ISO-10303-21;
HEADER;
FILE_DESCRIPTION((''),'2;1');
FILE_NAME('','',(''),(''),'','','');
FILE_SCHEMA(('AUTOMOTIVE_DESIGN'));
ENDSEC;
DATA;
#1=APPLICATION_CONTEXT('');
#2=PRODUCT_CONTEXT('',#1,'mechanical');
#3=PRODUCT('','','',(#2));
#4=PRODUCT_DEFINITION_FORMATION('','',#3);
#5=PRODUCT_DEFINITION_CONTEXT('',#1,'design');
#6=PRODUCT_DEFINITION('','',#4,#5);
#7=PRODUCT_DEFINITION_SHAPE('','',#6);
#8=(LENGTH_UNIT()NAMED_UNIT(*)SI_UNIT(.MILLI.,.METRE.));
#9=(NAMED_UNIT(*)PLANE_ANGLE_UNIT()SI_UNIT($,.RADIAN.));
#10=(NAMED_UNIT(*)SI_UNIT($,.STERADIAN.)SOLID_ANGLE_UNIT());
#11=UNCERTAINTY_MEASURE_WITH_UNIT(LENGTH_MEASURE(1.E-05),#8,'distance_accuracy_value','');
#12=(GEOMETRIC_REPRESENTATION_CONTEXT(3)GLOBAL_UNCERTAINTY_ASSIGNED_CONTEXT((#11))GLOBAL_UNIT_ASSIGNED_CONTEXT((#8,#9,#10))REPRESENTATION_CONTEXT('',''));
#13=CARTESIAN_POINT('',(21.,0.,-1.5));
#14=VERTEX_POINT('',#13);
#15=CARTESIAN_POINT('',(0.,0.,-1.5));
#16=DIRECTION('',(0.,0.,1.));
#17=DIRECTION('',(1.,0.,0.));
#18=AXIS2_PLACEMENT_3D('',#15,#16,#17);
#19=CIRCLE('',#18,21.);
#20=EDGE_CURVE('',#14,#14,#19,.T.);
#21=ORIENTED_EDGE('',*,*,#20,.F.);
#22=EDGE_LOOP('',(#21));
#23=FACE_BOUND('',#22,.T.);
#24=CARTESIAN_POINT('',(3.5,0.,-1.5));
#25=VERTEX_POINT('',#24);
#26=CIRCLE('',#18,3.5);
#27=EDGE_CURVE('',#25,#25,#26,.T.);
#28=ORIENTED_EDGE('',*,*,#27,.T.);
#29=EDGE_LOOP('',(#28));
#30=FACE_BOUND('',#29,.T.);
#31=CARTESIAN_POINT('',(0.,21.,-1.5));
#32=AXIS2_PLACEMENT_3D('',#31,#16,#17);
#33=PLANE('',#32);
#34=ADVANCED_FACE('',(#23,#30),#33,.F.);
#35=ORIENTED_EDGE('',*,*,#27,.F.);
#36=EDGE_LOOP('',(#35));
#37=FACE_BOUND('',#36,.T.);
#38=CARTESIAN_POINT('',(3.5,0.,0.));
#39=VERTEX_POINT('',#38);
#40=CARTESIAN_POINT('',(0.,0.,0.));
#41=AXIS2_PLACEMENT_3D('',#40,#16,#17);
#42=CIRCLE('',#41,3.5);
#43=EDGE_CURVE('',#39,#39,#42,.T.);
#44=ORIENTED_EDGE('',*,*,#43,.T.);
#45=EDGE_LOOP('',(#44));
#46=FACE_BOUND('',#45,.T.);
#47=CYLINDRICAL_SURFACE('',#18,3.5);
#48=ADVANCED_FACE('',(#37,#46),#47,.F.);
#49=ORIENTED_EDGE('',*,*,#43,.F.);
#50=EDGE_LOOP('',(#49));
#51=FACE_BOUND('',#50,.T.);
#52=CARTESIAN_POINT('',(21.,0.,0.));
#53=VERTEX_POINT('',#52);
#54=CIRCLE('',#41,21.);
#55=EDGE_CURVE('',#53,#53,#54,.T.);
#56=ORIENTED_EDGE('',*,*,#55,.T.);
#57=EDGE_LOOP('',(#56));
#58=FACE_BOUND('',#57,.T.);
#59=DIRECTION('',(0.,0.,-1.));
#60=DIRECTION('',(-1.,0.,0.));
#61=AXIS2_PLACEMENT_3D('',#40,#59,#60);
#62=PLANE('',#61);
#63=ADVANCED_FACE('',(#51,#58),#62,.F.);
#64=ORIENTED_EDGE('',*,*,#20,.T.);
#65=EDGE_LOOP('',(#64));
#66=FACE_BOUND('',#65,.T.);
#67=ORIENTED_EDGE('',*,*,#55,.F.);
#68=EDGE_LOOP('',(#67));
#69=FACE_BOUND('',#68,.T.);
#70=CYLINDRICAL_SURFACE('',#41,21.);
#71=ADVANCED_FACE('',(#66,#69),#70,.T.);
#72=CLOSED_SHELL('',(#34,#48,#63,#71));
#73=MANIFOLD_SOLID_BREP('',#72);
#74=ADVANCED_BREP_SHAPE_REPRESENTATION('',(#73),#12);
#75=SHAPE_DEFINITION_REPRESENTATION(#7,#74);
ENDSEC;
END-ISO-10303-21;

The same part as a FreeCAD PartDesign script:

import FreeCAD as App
import Part
import Sketcher


def add_polygon(sketch, points):
    """Adds a closed chain of lines whose ends are joined by coincident constraints."""
    first, n = sketch.GeometryCount, len(points)
    for a, b in zip(points, points[1:] + points[:1]):
        sketch.addGeometry(Part.LineSegment(App.Vector(*a, 0), App.Vector(*b, 0)), False)
    for i in range(n):
        sketch.addConstraint(Sketcher.Constraint("Coincident", first + i, 2, first + (i + 1) % n, 1))

doc = App.newDocument("Part")
params = doc.addObject("Spreadsheet::Sheet", "Params")
for row, (alias, value) in enumerate([
    ("sketch1_width", "21 mm"),
    ("sketch1_height", "1.5 mm"),
    ("revolution_angle", "360 deg"),
    ("sketch2_diameter", "7 mm"),
], start=1):
    params.set(f"A{row}", alias)
    params.set(f"B{row}", "=" + value)
    params.setAlias(f"B{row}", alias)

body = doc.addObject("PartDesign::Body", "Body")

sketch1 = body.newObject("Sketcher::SketchObject", "Sketch")
sketch1.AttachmentSupport = (doc.getObject("YZ_Plane"), [""])
sketch1.MapMode = "FlatFace"
add_polygon(sketch1, [(21, 0), (0, 0), (0, -1.5), (21, -1.5)])
sketch1.addConstraint([
    Sketcher.Constraint("Horizontal", 0),
    Sketcher.Constraint("Vertical", 1),
    Sketcher.Constraint("Horizontal", 2),
    Sketcher.Constraint("Vertical", 3),
    Sketcher.Constraint("Coincident", 0, 2, -1, 1),
    Sketcher.Constraint("DistanceX", 0, 2, 0, 1, 21.0),
    Sketcher.Constraint("DistanceY", 1, 2, 1, 1, 1.5),
])
sketch1.setExpression("Constraints[9]", "Params.sketch1_width")
sketch1.setExpression("Constraints[10]", "Params.sketch1_height")
revolution = body.newObject("PartDesign::Revolution", "Revolution")
revolution.Profile = sketch1
revolution.ReferenceAxis = (sketch1, ["V_Axis"])
revolution.setExpression("Angle", "Params.revolution_angle")

sketch2 = body.newObject("Sketcher::SketchObject", "Sketch001")
sketch2.AttachmentSupport = (doc.getObject("XY_Plane"), [""])
sketch2.MapMode = "FlatFace"
sketch2.addGeometry(Part.Circle(App.Vector(0, 0, 0), App.Vector(0, 0, 1), 3.5), False)
sketch2.addConstraint([
    Sketcher.Constraint("Coincident", 0, 3, -1, 1),
    Sketcher.Constraint("Diameter", 0, 7.0),
])
sketch2.setExpression("Constraints[1]", "Params.sketch2_diameter")
pocket1 = body.newObject("PartDesign::Pocket", "Pocket")
pocket1.Profile = sketch2
pocket1.Type = "ThroughAll"

doc.recompute()
